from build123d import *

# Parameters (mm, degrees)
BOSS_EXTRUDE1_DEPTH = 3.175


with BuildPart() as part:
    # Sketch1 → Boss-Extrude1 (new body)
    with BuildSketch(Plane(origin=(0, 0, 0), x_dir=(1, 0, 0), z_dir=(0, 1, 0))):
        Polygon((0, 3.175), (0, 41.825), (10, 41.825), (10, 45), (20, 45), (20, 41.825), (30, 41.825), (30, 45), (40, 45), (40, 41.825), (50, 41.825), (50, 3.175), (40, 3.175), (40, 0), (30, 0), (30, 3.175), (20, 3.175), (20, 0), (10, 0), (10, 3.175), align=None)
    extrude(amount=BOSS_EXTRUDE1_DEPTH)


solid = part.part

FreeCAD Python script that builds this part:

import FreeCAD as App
import Part
import Sketcher
from FreeCAD import Vector

doc = App.newDocument("Part")
body = doc.addObject("PartDesign::Body", "Body")

sketch1 = doc.addObject("Sketcher::SketchObject", "Sketch")
body.addObject(sketch1)
sketch1.AttachmentSupport = (doc.XZ_Plane, [""])
sketch1.MapMode = "FlatFace"
sketch1.addGeometry(Part.LineSegment(Vector(0, -41.825, 0), Vector(0, -3.175, 0)), False)
sketch1.addGeometry(Part.LineSegment(Vector(0, -3.175, 0), Vector(10, -3.175, 0)), False)
sketch1.addGeometry(Part.LineSegment(Vector(10, -3.175, 0), Vector(10, 0, 0)), False)
sketch1.addGeometry(Part.LineSegment(Vector(10, 0, 0), Vector(20, 0, 0)), False)
sketch1.addGeometry(Part.LineSegment(Vector(20, 0, 0), Vector(20, -3.175, 0)), False)
sketch1.addGeometry(Part.LineSegment(Vector(20, -3.175, 0), Vector(30, -3.175, 0)), False)
sketch1.addGeometry(Part.LineSegment(Vector(30, -3.175, 0), Vector(30, 0, 0)), False)
sketch1.addGeometry(Part.LineSegment(Vector(30, 0, 0), Vector(40, 0, 0)), False)
sketch1.addGeometry(Part.LineSegment(Vector(40, 0, 0), Vector(40, -3.175, 0)), False)
sketch1.addGeometry(Part.LineSegment(Vector(40, -3.175, 0), Vector(50, -3.175, 0)), False)
sketch1.addGeometry(Part.LineSegment(Vector(50, -3.175, 0), Vector(50, -41.825, 0)), False)
sketch1.addGeometry(Part.LineSegment(Vector(50, -41.825, 0), Vector(40, -41.825, 0)), False)
sketch1.addGeometry(Part.LineSegment(Vector(40, -41.825, 0), Vector(40, -45, 0)), False)
sketch1.addGeometry(Part.LineSegment(Vector(40, -45, 0), Vector(30, -45, 0)), False)
sketch1.addGeometry(Part.LineSegment(Vector(30, -45, 0), Vector(30, -41.825, 0)), False)
sketch1.addGeometry(Part.LineSegment(Vector(30, -41.825, 0), Vector(20, -41.825, 0)), False)
sketch1.addGeometry(Part.LineSegment(Vector(20, -41.825, 0), Vector(20, -45, 0)), False)
sketch1.addGeometry(Part.LineSegment(Vector(20, -45, 0), Vector(10, -45, 0)), False)
sketch1.addGeometry(Part.LineSegment(Vector(10, -45, 0), Vector(10, -41.825, 0)), False)
sketch1.addGeometry(Part.LineSegment(Vector(10, -41.825, 0), Vector(0, -41.825, 0)), False)
sketch1.addConstraint(Sketcher.Constraint("Coincident", 0, 2, 1, 1))
sketch1.addConstraint(Sketcher.Constraint("Coincident", 1, 2, 2, 1))
sketch1.addConstraint(Sketcher.Constraint("Coincident", 2, 2, 3, 1))
sketch1.addConstraint(Sketcher.Constraint("Coincident", 3, 2, 4, 1))
sketch1.addConstraint(Sketcher.Constraint("Coincident", 4, 2, 5, 1))
sketch1.addConstraint(Sketcher.Constraint("Coincident", 5, 2, 6, 1))
sketch1.addConstraint(Sketcher.Constraint("Coincident", 6, 2, 7, 1))
sketch1.addConstraint(Sketcher.Constraint("Coincident", 7, 2, 8, 1))
sketch1.addConstraint(Sketcher.Constraint("Coincident", 8, 2, 9, 1))
sketch1.addConstraint(Sketcher.Constraint("Coincident", 9, 2, 10, 1))
sketch1.addConstraint(Sketcher.Constraint("Coincident", 10, 2, 11, 1))
sketch1.addConstraint(Sketcher.Constraint("Coincident", 11, 2, 12, 1))
sketch1.addConstraint(Sketcher.Constraint("Coincident", 12, 2, 13, 1))
sketch1.addConstraint(Sketcher.Constraint("Coincident", 13, 2, 14, 1))
sketch1.addConstraint(Sketcher.Constraint("Coincident", 14, 2, 15, 1))
sketch1.addConstraint(Sketcher.Constraint("Coincident", 15, 2, 16, 1))
sketch1.addConstraint(Sketcher.Constraint("Coincident", 16, 2, 17, 1))
sketch1.addConstraint(Sketcher.Constraint("Coincident", 17, 2, 18, 1))
sketch1.addConstraint(Sketcher.Constraint("Coincident", 18, 2, 19, 1))
sketch1.addConstraint(Sketcher.Constraint("Coincident", 19, 2, 0, 1))
sketch1.addConstraint(Sketcher.Constraint("Vertical", 0))
sketch1.addConstraint(Sketcher.Constraint("Horizontal", 1))
sketch1.addConstraint(Sketcher.Constraint("Vertical", 2))
sketch1.addConstraint(Sketcher.Constraint("Horizontal", 3))
sketch1.addConstraint(Sketcher.Constraint("Vertical", 4))
sketch1.addConstraint(Sketcher.Constraint("Horizontal", 5))
sketch1.addConstraint(Sketcher.Constraint("Vertical", 6))
sketch1.addConstraint(Sketcher.Constraint("Horizontal", 7))
sketch1.addConstraint(Sketcher.Constraint("Vertical", 8))
sketch1.addConstraint(Sketcher.Constraint("Horizontal", 9))
sketch1.addConstraint(Sketcher.Constraint("Vertical", 10))
sketch1.addConstraint(Sketcher.Constraint("Horizontal", 11))
sketch1.addConstraint(Sketcher.Constraint("Vertical", 12))
sketch1.addConstraint(Sketcher.Constraint("Horizontal", 13))
sketch1.addConstraint(Sketcher.Constraint("Vertical", 14))
sketch1.addConstraint(Sketcher.Constraint("Horizontal", 15))
sketch1.addConstraint(Sketcher.Constraint("Vertical", 16))
sketch1.addConstraint(Sketcher.Constraint("Horizontal", 17))
sketch1.addConstraint(Sketcher.Constraint("Vertical", 18))
sketch1.addConstraint(Sketcher.Constraint("Horizontal", 19))
sketch1.addConstraint(Sketcher.Constraint("PointOnObject", 0, 2, -2))
sketch1.addConstraint(Sketcher.Constraint("PointOnObject", 2, 2, -1))
sketch1.addConstraint(Sketcher.Constraint("PointOnObject", 6, 2, -1))
sketch1.addConstraint(Sketcher.Constraint("Horizontal", 1, 2, 4, 2))
sketch1.addConstraint(Sketcher.Constraint("Horizontal", 5, 2, 8, 2))
sketch1.addConstraint(Sketcher.Constraint("Horizontal", 11, 2, 14, 2))
sketch1.addConstraint(Sketcher.Constraint("Horizontal", 13, 2, 16, 2))
sketch1.addConstraint(Sketcher.Constraint("Horizontal", 15, 2, 18, 2))
sketch1.addConstraint(Sketcher.Constraint("Vertical", 8, 2, 11, 2))
sketch1.addConstraint(Sketcher.Constraint("Vertical", 6, 2, 13, 2))
sketch1.addConstraint(Sketcher.Constraint("Vertical", 4, 2, 15, 2))
sketch1.addConstraint(Sketcher.Constraint("Vertical", 2, 2, 17, 2))
sketch1.addConstraint(Sketcher.Constraint("Equal", 1, 3))
sketch1.addConstraint(Sketcher.Constraint("Equal", 3, 5))
sketch1.addConstraint(Sketcher.Constraint("Equal", 5, 7))
sketch1.addConstraint(Sketcher.Constraint("Equal", 7, 9))
sketch1.addConstraint(Sketcher.Constraint("Equal", 8, 12))
sketch1.addConstraint(Sketcher.Constraint("DistanceX", 1, 1, 1, 2, 10.0))
sketch1.addConstraint(Sketcher.Constraint("DistanceY", 12, 2, -1, 1, 45.0))
sketch1.addConstraint(Sketcher.Constraint("DistanceY", 0, 1, 0, 2, 38.65))
pad1 = doc.addObject("PartDesign::Pad", "Pad")
body.addObject(pad1)
pad1.Profile = sketch1
pad1.Length = 3.175
pad1.Reversed = True

doc.recompute()
